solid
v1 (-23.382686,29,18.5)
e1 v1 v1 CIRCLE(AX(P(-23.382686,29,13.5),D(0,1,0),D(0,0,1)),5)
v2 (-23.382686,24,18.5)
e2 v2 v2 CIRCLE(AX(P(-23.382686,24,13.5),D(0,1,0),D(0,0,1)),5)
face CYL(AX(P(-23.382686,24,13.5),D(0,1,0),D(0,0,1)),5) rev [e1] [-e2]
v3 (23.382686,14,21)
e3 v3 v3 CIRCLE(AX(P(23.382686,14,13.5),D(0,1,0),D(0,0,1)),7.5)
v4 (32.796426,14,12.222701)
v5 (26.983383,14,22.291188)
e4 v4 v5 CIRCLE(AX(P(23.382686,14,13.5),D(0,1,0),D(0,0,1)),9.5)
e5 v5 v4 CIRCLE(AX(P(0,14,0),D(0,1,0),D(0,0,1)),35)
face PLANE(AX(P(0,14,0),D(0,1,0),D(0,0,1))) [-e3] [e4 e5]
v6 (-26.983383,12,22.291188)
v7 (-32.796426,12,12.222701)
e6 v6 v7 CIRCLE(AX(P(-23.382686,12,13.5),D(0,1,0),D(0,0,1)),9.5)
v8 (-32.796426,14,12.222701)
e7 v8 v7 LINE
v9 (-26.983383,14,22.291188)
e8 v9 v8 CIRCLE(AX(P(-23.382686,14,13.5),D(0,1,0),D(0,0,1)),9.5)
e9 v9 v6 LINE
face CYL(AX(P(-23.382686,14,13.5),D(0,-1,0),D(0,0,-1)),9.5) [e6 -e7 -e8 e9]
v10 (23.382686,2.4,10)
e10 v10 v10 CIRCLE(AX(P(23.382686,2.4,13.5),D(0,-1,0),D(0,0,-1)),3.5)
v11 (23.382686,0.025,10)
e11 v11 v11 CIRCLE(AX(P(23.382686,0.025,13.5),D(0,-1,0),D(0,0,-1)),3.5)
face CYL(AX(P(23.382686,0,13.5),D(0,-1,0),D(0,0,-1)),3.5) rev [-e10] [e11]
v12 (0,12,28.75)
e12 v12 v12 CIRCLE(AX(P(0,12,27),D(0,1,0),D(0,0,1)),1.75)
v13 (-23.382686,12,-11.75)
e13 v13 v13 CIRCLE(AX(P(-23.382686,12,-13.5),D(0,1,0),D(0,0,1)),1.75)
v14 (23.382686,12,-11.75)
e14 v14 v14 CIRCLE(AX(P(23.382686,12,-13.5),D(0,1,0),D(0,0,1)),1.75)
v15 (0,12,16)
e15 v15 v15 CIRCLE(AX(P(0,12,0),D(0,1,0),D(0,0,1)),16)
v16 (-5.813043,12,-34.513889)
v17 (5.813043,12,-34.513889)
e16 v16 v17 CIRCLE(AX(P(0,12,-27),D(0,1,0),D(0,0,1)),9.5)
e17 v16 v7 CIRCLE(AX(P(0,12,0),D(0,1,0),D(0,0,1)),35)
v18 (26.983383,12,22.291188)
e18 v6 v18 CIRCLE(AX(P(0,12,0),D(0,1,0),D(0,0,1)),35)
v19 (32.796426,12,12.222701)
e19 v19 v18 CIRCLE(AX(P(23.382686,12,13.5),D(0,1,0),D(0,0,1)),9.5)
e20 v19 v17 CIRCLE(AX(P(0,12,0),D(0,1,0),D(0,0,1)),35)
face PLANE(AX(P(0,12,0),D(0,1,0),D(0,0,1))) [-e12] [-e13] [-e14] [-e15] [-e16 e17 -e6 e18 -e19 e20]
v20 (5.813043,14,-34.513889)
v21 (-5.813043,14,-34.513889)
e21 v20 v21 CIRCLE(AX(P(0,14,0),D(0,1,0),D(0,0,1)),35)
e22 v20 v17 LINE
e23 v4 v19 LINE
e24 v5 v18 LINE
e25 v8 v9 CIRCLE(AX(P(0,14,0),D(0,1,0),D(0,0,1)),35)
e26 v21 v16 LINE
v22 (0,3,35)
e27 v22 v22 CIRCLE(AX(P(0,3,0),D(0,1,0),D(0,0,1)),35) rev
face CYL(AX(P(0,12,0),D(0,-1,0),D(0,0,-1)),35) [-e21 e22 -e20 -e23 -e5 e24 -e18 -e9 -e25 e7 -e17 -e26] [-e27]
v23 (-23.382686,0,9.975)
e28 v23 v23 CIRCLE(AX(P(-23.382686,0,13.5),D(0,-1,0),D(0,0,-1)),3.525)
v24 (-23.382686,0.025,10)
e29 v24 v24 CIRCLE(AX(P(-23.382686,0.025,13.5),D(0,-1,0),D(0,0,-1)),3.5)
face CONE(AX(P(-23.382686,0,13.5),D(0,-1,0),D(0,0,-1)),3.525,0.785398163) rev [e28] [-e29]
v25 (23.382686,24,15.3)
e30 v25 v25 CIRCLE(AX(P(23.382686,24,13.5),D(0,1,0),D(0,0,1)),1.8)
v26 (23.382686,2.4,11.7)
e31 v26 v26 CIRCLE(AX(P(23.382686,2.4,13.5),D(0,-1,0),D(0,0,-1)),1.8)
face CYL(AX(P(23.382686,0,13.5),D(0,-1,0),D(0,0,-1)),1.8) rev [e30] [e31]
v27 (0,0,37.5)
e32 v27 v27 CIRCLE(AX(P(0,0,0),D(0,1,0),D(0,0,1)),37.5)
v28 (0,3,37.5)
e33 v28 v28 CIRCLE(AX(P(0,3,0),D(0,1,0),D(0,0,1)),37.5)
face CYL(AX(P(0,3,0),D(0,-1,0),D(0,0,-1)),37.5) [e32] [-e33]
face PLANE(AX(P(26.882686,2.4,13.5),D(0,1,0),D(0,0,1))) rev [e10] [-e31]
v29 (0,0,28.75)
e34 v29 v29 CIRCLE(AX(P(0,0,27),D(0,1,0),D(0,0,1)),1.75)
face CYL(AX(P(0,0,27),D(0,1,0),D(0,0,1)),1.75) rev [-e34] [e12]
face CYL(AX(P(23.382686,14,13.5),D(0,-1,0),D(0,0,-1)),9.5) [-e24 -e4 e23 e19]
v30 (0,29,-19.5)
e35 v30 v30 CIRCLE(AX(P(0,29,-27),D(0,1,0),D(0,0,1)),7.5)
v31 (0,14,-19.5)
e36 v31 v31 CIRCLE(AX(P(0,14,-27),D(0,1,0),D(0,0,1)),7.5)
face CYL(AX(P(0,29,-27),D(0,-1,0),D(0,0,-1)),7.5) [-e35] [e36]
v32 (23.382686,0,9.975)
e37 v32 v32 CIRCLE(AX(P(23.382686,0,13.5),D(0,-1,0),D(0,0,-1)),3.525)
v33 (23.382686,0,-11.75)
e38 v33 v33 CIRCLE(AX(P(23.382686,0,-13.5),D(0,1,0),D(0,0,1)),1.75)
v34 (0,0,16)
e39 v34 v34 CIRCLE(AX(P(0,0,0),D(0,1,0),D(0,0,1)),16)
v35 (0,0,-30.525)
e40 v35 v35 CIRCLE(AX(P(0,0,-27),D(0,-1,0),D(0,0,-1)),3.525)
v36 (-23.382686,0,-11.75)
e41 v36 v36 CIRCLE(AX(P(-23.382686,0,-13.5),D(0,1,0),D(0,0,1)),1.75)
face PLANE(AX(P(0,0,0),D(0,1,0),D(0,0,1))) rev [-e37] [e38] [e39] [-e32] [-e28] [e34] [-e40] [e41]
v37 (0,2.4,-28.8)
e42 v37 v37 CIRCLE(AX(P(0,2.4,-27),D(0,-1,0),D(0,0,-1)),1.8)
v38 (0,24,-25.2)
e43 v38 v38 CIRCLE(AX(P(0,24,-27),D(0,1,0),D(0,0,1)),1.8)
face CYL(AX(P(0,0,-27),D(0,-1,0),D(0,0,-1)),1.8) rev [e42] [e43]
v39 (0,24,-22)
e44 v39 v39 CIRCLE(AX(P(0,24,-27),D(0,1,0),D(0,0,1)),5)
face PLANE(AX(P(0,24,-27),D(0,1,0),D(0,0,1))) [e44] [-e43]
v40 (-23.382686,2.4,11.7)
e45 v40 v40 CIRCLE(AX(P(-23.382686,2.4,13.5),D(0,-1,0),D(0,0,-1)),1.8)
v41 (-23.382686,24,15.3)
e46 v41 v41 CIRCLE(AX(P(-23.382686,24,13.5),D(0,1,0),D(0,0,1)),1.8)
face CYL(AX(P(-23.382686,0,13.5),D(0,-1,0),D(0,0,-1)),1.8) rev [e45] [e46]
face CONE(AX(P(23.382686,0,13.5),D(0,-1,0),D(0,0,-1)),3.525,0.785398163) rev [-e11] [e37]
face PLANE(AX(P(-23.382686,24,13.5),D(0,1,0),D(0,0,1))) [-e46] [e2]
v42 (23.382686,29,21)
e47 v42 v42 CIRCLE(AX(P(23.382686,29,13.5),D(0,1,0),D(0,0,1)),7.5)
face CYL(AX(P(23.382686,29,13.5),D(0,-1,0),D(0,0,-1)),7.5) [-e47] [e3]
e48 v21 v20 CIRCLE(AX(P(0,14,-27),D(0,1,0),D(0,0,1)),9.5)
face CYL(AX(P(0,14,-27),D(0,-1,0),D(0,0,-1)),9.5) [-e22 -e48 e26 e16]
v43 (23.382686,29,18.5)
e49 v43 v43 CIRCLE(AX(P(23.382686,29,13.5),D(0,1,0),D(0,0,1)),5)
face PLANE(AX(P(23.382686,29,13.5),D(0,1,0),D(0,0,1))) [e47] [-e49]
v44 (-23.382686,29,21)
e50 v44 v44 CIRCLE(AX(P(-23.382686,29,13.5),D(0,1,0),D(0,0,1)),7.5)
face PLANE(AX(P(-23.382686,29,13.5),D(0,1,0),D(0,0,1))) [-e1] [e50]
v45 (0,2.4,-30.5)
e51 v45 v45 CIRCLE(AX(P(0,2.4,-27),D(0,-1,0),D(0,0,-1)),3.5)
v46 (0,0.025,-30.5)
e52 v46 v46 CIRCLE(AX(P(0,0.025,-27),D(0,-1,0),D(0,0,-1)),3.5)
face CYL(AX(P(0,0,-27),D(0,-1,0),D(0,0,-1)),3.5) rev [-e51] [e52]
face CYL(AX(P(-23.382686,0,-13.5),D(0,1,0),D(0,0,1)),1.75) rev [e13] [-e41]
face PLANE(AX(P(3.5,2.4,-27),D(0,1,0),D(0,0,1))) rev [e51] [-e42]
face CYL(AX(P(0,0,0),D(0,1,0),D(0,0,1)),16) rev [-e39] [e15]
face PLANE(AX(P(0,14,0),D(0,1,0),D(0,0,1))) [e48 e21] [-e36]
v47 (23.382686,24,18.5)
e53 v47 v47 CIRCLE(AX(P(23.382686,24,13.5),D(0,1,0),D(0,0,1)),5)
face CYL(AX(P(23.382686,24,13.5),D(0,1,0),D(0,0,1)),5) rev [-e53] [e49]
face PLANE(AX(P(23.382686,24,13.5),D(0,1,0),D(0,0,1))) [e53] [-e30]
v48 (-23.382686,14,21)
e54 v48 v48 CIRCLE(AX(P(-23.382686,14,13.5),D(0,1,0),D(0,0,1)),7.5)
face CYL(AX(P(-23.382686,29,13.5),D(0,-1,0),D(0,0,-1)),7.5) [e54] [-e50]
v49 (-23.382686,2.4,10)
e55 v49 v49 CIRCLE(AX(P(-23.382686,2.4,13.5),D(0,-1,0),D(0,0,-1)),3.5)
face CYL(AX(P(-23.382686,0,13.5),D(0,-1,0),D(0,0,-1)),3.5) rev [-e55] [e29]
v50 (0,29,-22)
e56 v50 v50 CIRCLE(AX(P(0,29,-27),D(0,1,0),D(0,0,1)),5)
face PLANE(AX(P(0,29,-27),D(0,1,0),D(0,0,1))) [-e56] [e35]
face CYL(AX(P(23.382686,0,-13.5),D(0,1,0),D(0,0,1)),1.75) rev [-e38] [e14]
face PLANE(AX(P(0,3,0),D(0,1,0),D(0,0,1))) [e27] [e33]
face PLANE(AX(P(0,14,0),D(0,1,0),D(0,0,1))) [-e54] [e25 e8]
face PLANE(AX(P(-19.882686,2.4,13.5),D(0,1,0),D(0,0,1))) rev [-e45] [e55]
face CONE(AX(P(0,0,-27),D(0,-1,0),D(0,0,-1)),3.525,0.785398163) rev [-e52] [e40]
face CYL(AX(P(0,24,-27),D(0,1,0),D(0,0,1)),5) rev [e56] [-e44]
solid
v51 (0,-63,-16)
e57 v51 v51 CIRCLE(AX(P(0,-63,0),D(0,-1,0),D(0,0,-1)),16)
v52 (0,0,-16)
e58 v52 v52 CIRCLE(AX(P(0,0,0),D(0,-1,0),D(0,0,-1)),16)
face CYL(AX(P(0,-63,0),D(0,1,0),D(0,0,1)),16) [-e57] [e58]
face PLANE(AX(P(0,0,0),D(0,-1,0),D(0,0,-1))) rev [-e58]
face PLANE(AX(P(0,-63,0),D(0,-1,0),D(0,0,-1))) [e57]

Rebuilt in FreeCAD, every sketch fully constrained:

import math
import FreeCAD as App
import Part
import Sketcher

V = App.Vector
Q = App.Units.Quantity

doc = App.newDocument("Part")
body = doc.addObject("PartDesign::Body", "Body")

# Sketch on XZ plane
sketch1 = body.newObject("Sketcher::SketchObject", "Sketch")
sketch1.AttachmentSupport = (doc.getObject("XZ_Plane"), [""])
sketch1.MapMode = "FlatFace"
sketch1.addGeometry(Part.Circle(V(0, 0, 0), V(0, 0, 1), 38), False)
sketch1.addConstraint([
    Sketcher.Constraint("Coincident", 0, 3, -1, 1),
    Sketcher.Constraint("Diameter", 0, 75.0),
])
pad1 = body.newObject("PartDesign::Pad", "Pad")
pad1.Profile = sketch1
pad1.Length = 3
pad1.Reversed = True

# Sketch on XZ plane
sketch2 = body.newObject("Sketcher::SketchObject", "Sketch001")
sketch2.AttachmentSupport = (doc.getObject("XZ_Plane"), [""])
sketch2.MapMode = "FlatFace"
sketch2.addGeometry(Part.Circle(V(0, 0, 0), V(0, 0, 1), 35), False)
sketch2.addConstraint([
    Sketcher.Constraint("Coincident", 0, 3, -1, 1),
    Sketcher.Constraint("Diameter", 0, 70.0),
])
pad2 = body.newObject("PartDesign::Pad", "Pad001")
pad2.Profile = sketch2
pad2.Length = 12
pad2.Reversed = True

# Sketch on XZ plane
sketch3 = body.newObject("Sketcher::SketchObject", "Sketch002")
sketch3.AttachmentSupport = (doc.getObject("XZ_Plane"), [""])
sketch3.MapMode = "FlatFace"
sketch3.AttachmentOffset = App.Placement(V(0, 0, -12), App.Rotation())
sketch3.addGeometry(Part.Circle(V(0, 0, 0), V(0, 0, 1), 16), False)
sketch3.addConstraint([
    Sketcher.Constraint("Coincident", 0, 3, -1, 1),
    Sketcher.Constraint("Diameter", 0, 32.0),
])
pocket1 = body.newObject("PartDesign::Pocket", "Pocket")
pocket1.Profile = sketch3
pocket1.Type = "ThroughAll"
pocket1.Reversed = True

# Sketch on XZ plane
sketch4 = body.newObject("Sketcher::SketchObject", "Sketch003")
sketch4.AttachmentSupport = (doc.getObject("XZ_Plane"), [""])
sketch4.MapMode = "FlatFace"
sketch4.AttachmentOffset = App.Placement(V(0, 0, -12), App.Rotation())
sketch4.addGeometry([
    Part.ArcOfCircle(Part.Circle(V(0, 0, 0), V(0, 0, 1), 35), math.radians(-99.56), math.radians(-80.44)),  # 0
    Part.ArcOfCircle(Part.Circle(V(0, -27, 0), V(0, 0, 1), 10), math.radians(-52), math.radians(232)),  # 1
    Part.ArcOfCircle(Part.Circle(V(-23, 14, 0), V(0, 0, 1), 10), math.radians(-172), math.radians(112)),  # 2
    Part.ArcOfCircle(Part.Circle(V(0, 0, 0), V(0, 0, 1), 35), math.radians(140.44), math.radians(159.56)),  # 3
    Part.ArcOfCircle(Part.Circle(V(0, 0, 0), V(0, 0, 1), 35), math.radians(20.44), math.radians(39.56)),  # 4
    Part.ArcOfCircle(Part.Circle(V(23, 14, 0), V(0, 0, 1), 10), math.radians(68), math.radians(352)),  # 5
], False)
sketch4.addConstraint([
    Sketcher.Constraint("Coincident", 0, 1, 1, 2),
    Sketcher.Constraint("Coincident", 1, 1, 0, 2),
    Sketcher.Constraint("Coincident", 2, 1, 3, 2),
    Sketcher.Constraint("Coincident", 3, 1, 2, 2),
    Sketcher.Constraint("Coincident", 4, 1, 5, 2),
    Sketcher.Constraint("Coincident", 5, 1, 4, 2),
    Sketcher.Constraint("Coincident", 0, 3, -1, 1),
    Sketcher.Constraint("Coincident", 3, 3, -1, 1),
    Sketcher.Constraint("Coincident", 4, 3, -1, 1),
    Sketcher.Constraint("Equal", 1, 2),
    Sketcher.Constraint("Equal", 0, 3),
    Sketcher.Constraint("Equal", 3, 4),
    Sketcher.Constraint("Equal", 2, 5),
    Sketcher.Constraint("Symmetric", 2, 3, 5, 3, -2),
    Sketcher.Constraint("PointOnObject", 1, 3, -2),
    Sketcher.Constraint("Radius", 0, 35.0),
    Sketcher.Constraint("Radius", 1, 9.5),
    Sketcher.Constraint("DistanceY", 1, 3, -1, 1, 27.0),
    Sketcher.Constraint("DistanceY", -1, 1, 2, 3, 13.5),
    Sketcher.Constraint("DistanceY", -1, 1, 2, 1, 12.222701),
])
pad3 = body.newObject("PartDesign::Pad", "Pad002")
pad3.Profile = sketch4
pad3.Length = 2
pad3.Reversed = True

# Sketch on XZ plane
sketch5 = body.newObject("Sketcher::SketchObject", "Sketch004")
sketch5.AttachmentSupport = (doc.getObject("XZ_Plane"), [""])
sketch5.MapMode = "FlatFace"
sketch5.AttachmentOffset = App.Placement(V(0, 0, -14), App.Rotation())
sketch5.addGeometry([
    Part.Circle(V(0, -27, 0), V(0, 0, 1), 8),
    Part.Circle(V(23, 14, 0), V(0, 0, 1), 8),
    Part.Circle(V(-23, 14, 0), V(0, 0, 1), 8),
], False)
sketch5.addConstraint([
    Sketcher.Constraint("Equal", 0, 1),
    Sketcher.Constraint("Equal", 1, 2),
    Sketcher.Constraint("Symmetric", 1, 3, 2, 3, -2),
    Sketcher.Constraint("PointOnObject", 0, 3, -2),
    Sketcher.Constraint("Diameter", 0, 15.0),
    Sketcher.Constraint("DistanceY", 0, 3, -1, 1, 27.0),
    Sketcher.Constraint("DistanceY", -1, 1, 1, 3, 13.5),
    Sketcher.Constraint("DistanceX", 2, 3, 1, 3, 46.765372),
])
pad4 = body.newObject("PartDesign::Pad", "Pad003")
pad4.Profile = sketch5
pad4.Length = 15
pad4.Reversed = True

# Sketch on XZ plane
sketch6 = body.newObject("Sketcher::SketchObject", "Sketch005")
sketch6.AttachmentSupport = (doc.getObject("XZ_Plane"), [""])
sketch6.MapMode = "FlatFace"
sketch6.AttachmentOffset = App.Placement(V(0, 0, -29), App.Rotation())
sketch6.addGeometry([
    Part.Circle(V(0, -27, 0), V(0, 0, 1), 5),
    Part.Circle(V(23, 14, 0), V(0, 0, 1), 5),
    Part.Circle(V(-23, 14, 0), V(0, 0, 1), 5),
], False)
sketch6.addConstraint([
    Sketcher.Constraint("Equal", 0, 1),
    Sketcher.Constraint("Equal", 1, 2),
    Sketcher.Constraint("Symmetric", 1, 3, 2, 3, -2),
    Sketcher.Constraint("PointOnObject", 0, 3, -2),
    Sketcher.Constraint("Diameter", 0, 10.0),
    Sketcher.Constraint("DistanceY", 0, 3, -1, 1, 27.0),
    Sketcher.Constraint("DistanceY", -1, 1, 1, 3, 13.5),
    Sketcher.Constraint("DistanceX", 2, 3, 1, 3, 46.765372),
])
pocket2 = body.newObject("PartDesign::Pocket", "Pocket001")
pocket2.Profile = sketch6
pocket2.Length = 5
pocket2.Reversed = True

# Sketch on YZ plane
sketch7 = body.newObject("Sketcher::SketchObject", "Sketch006")
sketch7.AttachmentSupport = (doc.getObject("YZ_Plane"), [""])
sketch7.MapMode = "FlatFace"
sketch7.addGeometry([
    Part.LineSegment(V(29, -27, 0), V(0, -27, 0)),  # 0
    Part.LineSegment(V(0, -27, 0), V(0, -30.525, 0)),  # 1
    Part.LineSegment(V(0, -30.525, 0), V(0.025, -30.5, 0)),  # 2
    Part.LineSegment(V(0.025, -30.5, 0), V(2.4, -30.5, 0)),  # 3
    Part.LineSegment(V(2.4, -30.5, 0), V(2.4, -28.8, 0)),  # 4
    Part.LineSegment(V(2.4, -28.8, 0), V(29, -28.8, 0)),  # 5
    Part.LineSegment(V(29, -28.8, 0), V(29, -27, 0)),  # 6
], False)
sketch7.addGeometry(Part.LineSegment(V(0, -27, 0), V(29, -27, 0)), True)  # axis
sketch7.addConstraint([
    Sketcher.Constraint("Coincident", 0, 2, 1, 1),
    Sketcher.Constraint("Coincident", 1, 2, 2, 1),
    Sketcher.Constraint("Coincident", 2, 2, 3, 1),
    Sketcher.Constraint("Coincident", 3, 2, 4, 1),
    Sketcher.Constraint("Coincident", 4, 2, 5, 1),
    Sketcher.Constraint("Coincident", 5, 2, 6, 1),
    Sketcher.Constraint("Coincident", 6, 2, 0, 1),
    Sketcher.Constraint("Horizontal", 0),
    Sketcher.Constraint("Vertical", 1),
    Sketcher.Constraint("Horizontal", 3),
    Sketcher.Constraint("Vertical", 4),
    Sketcher.Constraint("Horizontal", 5),
    Sketcher.Constraint("Vertical", 6),
    Sketcher.Constraint("Horizontal", 7),
    Sketcher.Constraint("Coincident", 7, 1, 0, 2),
    Sketcher.Constraint("PointOnObject", 0, 2, -2),
    Sketcher.Constraint("Vertical", 5, 2, 7, 2),
    Sketcher.Constraint("DistanceX", 0, 2, 0, 1, 29.0),
    Sketcher.Constraint("Angle", 2, Q("45 deg")),
    Sketcher.Constraint("DistanceX", 5, 1, 5, 2, 26.6),
    Sketcher.Constraint("DistanceY", 4, 1, 4, 2, 1.7),
    Sketcher.Constraint("DistanceY", 6, 1, 6, 2, 1.8),
    Sketcher.Constraint("DistanceY", 0, 2, -1, 1, 27.0),
    Sketcher.Constraint("DistanceX", 3, 1, 3, 2, 2.375),
])
groove = body.newObject("PartDesign::Groove", "Groove")
groove.Profile = sketch7
groove.ReferenceAxis = (sketch7, ["Axis0"])
groove.Angle = 360
doc.recompute()

datumline = body.newObject("PartDesign::Line", "DatumLine")
datumline.Placement = App.Placement(V(0, 0, 0), App.Rotation(V(0, 0, 1), V(-0.5, 0, 0.866025404)))
linearpattern = body.newObject("PartDesign::LinearPattern", "LinearPattern")
linearpattern.Originals = [groove]
linearpattern.Direction = (datumline, [""])
linearpattern.Mode = "offset"
linearpattern.Offset = 46.765372
linearpattern.Occurrences = 2
body.Tip = linearpattern
doc.recompute()

datumline2 = body.newObject("PartDesign::Line", "DatumLine001")
datumline2.Placement = App.Placement(V(0, 0, 0), App.Rotation(V(0, 0, 1), V(0.5, 0, 0.866025404)))
linearpattern2 = body.newObject("PartDesign::LinearPattern", "LinearPattern001")
linearpattern2.Originals = [groove]
linearpattern2.Direction = (datumline2, [""])
linearpattern2.Mode = "offset"
linearpattern2.Offset = 46.765372
linearpattern2.Occurrences = 2
body.Tip = linearpattern2

# Sketch on XZ plane
sketch8 = body.newObject("Sketcher::SketchObject", "Sketch007")
sketch8.AttachmentSupport = (doc.getObject("XZ_Plane"), [""])
sketch8.MapMode = "FlatFace"
sketch8.AttachmentOffset = App.Placement(V(0, 0, -12), App.Rotation())
sketch8.addGeometry([
    Part.Circle(V(23.4, -13.5, 0), V(0, 0, 1), 1.8),
    Part.Circle(V(0, 27, 0), V(0, 0, 1), 1.8),
    Part.Circle(V(-23.4, -13.5, 0), V(0, 0, 1), 1.8),
], False)
sketch8.addConstraint([
    Sketcher.Constraint("Equal", 0, 1),
    Sketcher.Constraint("Equal", 1, 2),
    Sketcher.Constraint("Symmetric", 0, 3, 2, 3, -2),
    Sketcher.Constraint("PointOnObject", 1, 3, -2),
    Sketcher.Constraint("Diameter", 0, 3.5),
    Sketcher.Constraint("DistanceY", -1, 1, 1, 3, 27.0),
    Sketcher.Constraint("DistanceY", 0, 3, -1, 1, 13.5),
    Sketcher.Constraint("DistanceX", 2, 3, 0, 3, 46.765372),
])
pocket3 = body.newObject("PartDesign::Pocket", "Pocket002")
pocket3.Profile = sketch8
pocket3.Type = "ThroughAll"
pocket3.Reversed = True
body2 = doc.addObject("PartDesign::Body", "Body001")

# Sketch on XZ plane
sketch9 = body2.newObject("Sketcher::SketchObject", "Sketch008")
sketch9.AttachmentSupport = (doc.getObject("XZ_Plane001"), [""])
sketch9.MapMode = "FlatFace"
sketch9.addGeometry(Part.Circle(V(0, 0, 0), V(0, 0, 1), 16), False)
sketch9.addConstraint([
    Sketcher.Constraint("Coincident", 0, 3, -1, 1),
    Sketcher.Constraint("Diameter", 0, 32.0),
])
pad5 = body2.newObject("PartDesign::Pad", "Pad004")
pad5.Profile = sketch9
pad5.Length = 63

doc.recompute()
